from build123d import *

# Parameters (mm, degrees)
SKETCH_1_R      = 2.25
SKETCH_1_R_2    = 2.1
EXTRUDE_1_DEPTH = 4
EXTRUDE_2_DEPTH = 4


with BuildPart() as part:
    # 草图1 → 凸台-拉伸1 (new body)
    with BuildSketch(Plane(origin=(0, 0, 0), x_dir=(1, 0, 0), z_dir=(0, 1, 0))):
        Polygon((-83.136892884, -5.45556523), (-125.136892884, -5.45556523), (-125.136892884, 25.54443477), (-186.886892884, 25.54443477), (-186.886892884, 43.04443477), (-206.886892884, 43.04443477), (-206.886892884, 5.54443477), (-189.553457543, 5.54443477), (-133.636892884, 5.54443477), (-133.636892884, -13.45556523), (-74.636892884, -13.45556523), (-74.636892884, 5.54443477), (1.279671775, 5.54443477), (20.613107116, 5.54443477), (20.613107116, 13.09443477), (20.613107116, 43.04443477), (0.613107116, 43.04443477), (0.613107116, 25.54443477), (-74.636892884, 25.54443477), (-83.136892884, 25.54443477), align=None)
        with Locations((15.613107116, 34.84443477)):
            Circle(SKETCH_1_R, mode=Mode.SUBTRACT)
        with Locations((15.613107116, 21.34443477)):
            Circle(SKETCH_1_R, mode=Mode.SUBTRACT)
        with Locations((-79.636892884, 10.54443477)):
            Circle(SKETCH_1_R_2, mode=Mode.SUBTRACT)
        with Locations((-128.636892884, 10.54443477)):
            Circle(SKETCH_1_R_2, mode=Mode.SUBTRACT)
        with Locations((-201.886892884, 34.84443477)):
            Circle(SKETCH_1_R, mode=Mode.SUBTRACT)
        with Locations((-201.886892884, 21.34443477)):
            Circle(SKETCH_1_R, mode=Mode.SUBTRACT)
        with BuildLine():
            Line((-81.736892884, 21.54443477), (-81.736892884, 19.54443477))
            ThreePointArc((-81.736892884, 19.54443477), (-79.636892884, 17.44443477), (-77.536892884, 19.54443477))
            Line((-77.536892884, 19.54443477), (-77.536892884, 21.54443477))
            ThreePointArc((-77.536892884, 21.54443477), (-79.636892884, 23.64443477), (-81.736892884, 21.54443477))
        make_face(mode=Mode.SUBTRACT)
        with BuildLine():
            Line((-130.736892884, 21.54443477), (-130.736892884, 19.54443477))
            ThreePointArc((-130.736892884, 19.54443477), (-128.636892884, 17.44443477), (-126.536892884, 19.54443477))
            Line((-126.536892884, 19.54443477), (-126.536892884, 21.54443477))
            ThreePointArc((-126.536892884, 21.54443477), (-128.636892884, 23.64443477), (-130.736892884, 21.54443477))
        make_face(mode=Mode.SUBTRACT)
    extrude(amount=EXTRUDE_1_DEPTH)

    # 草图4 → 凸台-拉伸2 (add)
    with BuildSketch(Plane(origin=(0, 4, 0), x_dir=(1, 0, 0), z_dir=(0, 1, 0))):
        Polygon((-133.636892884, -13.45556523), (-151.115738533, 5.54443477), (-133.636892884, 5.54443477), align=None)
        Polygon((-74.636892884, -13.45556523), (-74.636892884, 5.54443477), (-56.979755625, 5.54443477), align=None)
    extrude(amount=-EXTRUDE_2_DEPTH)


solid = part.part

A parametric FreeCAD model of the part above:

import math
import FreeCAD as App
import Part
import Sketcher

V = App.Vector
Q = App.Units.Quantity


def add_polygon(sketch, points):
    """Adds a closed chain of lines whose ends are joined by coincident constraints."""
    first, n = sketch.GeometryCount, len(points)
    for a, b in zip(points, points[1:] + points[:1]):
        sketch.addGeometry(Part.LineSegment(App.Vector(*a, 0), App.Vector(*b, 0)), False)
    for i in range(n):
        sketch.addConstraint(Sketcher.Constraint("Coincident", first + i, 2, first + (i + 1) % n, 1))

doc = App.newDocument("Part")
body = doc.addObject("PartDesign::Body", "Body")

sketch1 = body.newObject("Sketcher::SketchObject", "Sketch")
sketch1.AttachmentSupport = (doc.getObject("XZ_Plane"), [""])
sketch1.MapMode = "FlatFace"
add_polygon(sketch1, [(-83.136893, 5.455565), (-125.136893, 5.455565), (-125.136893, -25.544435), (-186.886893, -25.544435), (-186.886893, -43.044435), (-206.886893, -43.044435), (-206.886893, -5.544435), (-133.636893, -5.544435), (-133.636893, 13.455565), (-74.636893, 13.455565), (-74.636893, -5.544435), (20.613107, -5.544435), (20.613107, -43.044435), (0.613107, -43.044435), (0.613107, -25.544435), (-83.136893, -25.544435)])
sketch1.addGeometry(Part.Circle(V(-128.636893, -10.544435, 0), V(0, 0, 1), 2.1), False)
sketch1.addGeometry(Part.Circle(V(-201.886893, -21.344435, 0), V(0, 0, 1), 2.25), False)
sketch1.addGeometry(Part.LineSegment(V(-130.736893, -19.544435, 0), V(-130.736893, -21.544435, 0)), False)
sketch1.addGeometry(Part.ArcOfCircle(Part.Circle(V(-128.636893, -21.544435, 0), V(0, 0, 1), 2.1), math.radians(180), math.radians(360)), False)
sketch1.addGeometry(Part.LineSegment(V(-126.536893, -21.544435, 0), V(-126.536893, -19.544435, 0)), False)
sketch1.addGeometry(Part.ArcOfCircle(Part.Circle(V(-128.636893, -19.544435, 0), V(0, 0, 1), 2.1), math.radians(0), math.radians(180)), False)
sketch1.addGeometry(Part.Circle(V(-79.636893, -10.544435, 0), V(0, 0, 1), 2.1), False)
sketch1.addGeometry(Part.LineSegment(V(-81.736893, -19.544435, 0), V(-81.736893, -21.544435, 0)), False)
sketch1.addGeometry(Part.ArcOfCircle(Part.Circle(V(-79.636893, -21.544435, 0), V(0, 0, 1), 2.1), math.radians(180), math.radians(360)), False)
sketch1.addGeometry(Part.LineSegment(V(-77.536893, -21.544435, 0), V(-77.536893, -19.544435, 0)), False)
sketch1.addGeometry(Part.ArcOfCircle(Part.Circle(V(-79.636893, -19.544435, 0), V(0, 0, 1), 2.1), math.radians(0), math.radians(180)), False)
sketch1.addGeometry(Part.Circle(V(15.613107, -21.344435, 0), V(0, 0, 1), 2.25), False)
sketch1.addGeometry(Part.Circle(V(-201.886893, -34.844435, 0), V(0, 0, 1), 2.25), False)
sketch1.addGeometry(Part.Circle(V(15.613107, -34.844435, 0), V(0, 0, 1), 2.25), False)
sketch1.addConstraint(Sketcher.Constraint("Tangent", 18, 2, 19, 1))
sketch1.addConstraint(Sketcher.Constraint("Tangent", 19, 2, 20, 1))
sketch1.addConstraint(Sketcher.Constraint("Tangent", 20, 2, 21, 1))
sketch1.addConstraint(Sketcher.Constraint("Tangent", 21, 2, 18, 1))
sketch1.addConstraint(Sketcher.Constraint("Tangent", 23, 2, 24, 1))
sketch1.addConstraint(Sketcher.Constraint("Tangent", 24, 2, 25, 1))
sketch1.addConstraint(Sketcher.Constraint("Tangent", 25, 2, 26, 1))
sketch1.addConstraint(Sketcher.Constraint("Tangent", 26, 2, 23, 1))
sketch1.addConstraint(Sketcher.Constraint("Horizontal", 0))
sketch1.addConstraint(Sketcher.Constraint("Vertical", 1))
sketch1.addConstraint(Sketcher.Constraint("Horizontal", 2))
sketch1.addConstraint(Sketcher.Constraint("Vertical", 3))
sketch1.addConstraint(Sketcher.Constraint("Horizontal", 4))
sketch1.addConstraint(Sketcher.Constraint("Vertical", 5))
sketch1.addConstraint(Sketcher.Constraint("Horizontal", 6))
sketch1.addConstraint(Sketcher.Constraint("Vertical", 7))
sketch1.addConstraint(Sketcher.Constraint("Horizontal", 8))
sketch1.addConstraint(Sketcher.Constraint("Vertical", 9))
sketch1.addConstraint(Sketcher.Constraint("Horizontal", 10))
sketch1.addConstraint(Sketcher.Constraint("Vertical", 11))
sketch1.addConstraint(Sketcher.Constraint("Horizontal", 12))
sketch1.addConstraint(Sketcher.Constraint("Vertical", 13))
sketch1.addConstraint(Sketcher.Constraint("Horizontal", 14))
sketch1.addConstraint(Sketcher.Constraint("Vertical", 15))
sketch1.addConstraint(Sketcher.Constraint("Vertical", 18))
sketch1.addConstraint(Sketcher.Constraint("Vertical", 20))
sketch1.addConstraint(Sketcher.Constraint("Vertical", 23))
sketch1.addConstraint(Sketcher.Constraint("Vertical", 25))
sketch1.addConstraint(Sketcher.Constraint("Equal", 16, 19))
sketch1.addConstraint(Sketcher.Constraint("Equal", 21, 22))
sketch1.addConstraint(Sketcher.Constraint("Equal", 22, 24))
sketch1.addConstraint(Sketcher.Constraint("Equal", 17, 27))
sketch1.addConstraint(Sketcher.Constraint("Equal", 27, 28))
sketch1.addConstraint(Sketcher.Constraint("Equal", 28, 29))
sketch1.addConstraint(Sketcher.Constraint("Horizontal", 16, 3, 22, 3))
sketch1.addConstraint(Sketcher.Constraint("Horizontal", 19, 3, 24, 3))
sketch1.addConstraint(Sketcher.Constraint("Horizontal", 21, 3, 26, 3))
sketch1.addConstraint(Sketcher.Constraint("Horizontal", 17, 3, 27, 3))
sketch1.addConstraint(Sketcher.Constraint("Horizontal", 28, 3, 29, 3))
sketch1.addConstraint(Sketcher.Constraint("Horizontal", 6, 2, 9, 2))
sketch1.addConstraint(Sketcher.Constraint("Horizontal", 4, 2, 11, 2))
sketch1.addConstraint(Sketcher.Constraint("Horizontal", 2, 2, 13, 2))
sketch1.addConstraint(Sketcher.Constraint("Vertical", 16, 3, 19, 3))
sketch1.addConstraint(Sketcher.Constraint("Vertical", 22, 3, 24, 3))
sketch1.addConstraint(Sketcher.Constraint("Vertical", 17, 3, 28, 3))
sketch1.addConstraint(Sketcher.Constraint("Vertical", 27, 3, 29, 3))
sketch1.addConstraint(Sketcher.Constraint("Equal", 4, 12))
sketch1.addConstraint(Sketcher.Constraint("Diameter", 16, Q("4.2 mm")))
sketch1.addConstraint(Sketcher.Constraint("Diameter", 17, Q("4.5 mm")))
sketch1.addConstraint(Sketcher.Constraint("DistanceX", 0, 2, 0, 1, Q("42 mm")))
sketch1.addConstraint(Sketcher.Constraint("DistanceX", 4, 2, 4, 1, Q("20 mm")))
sketch1.addConstraint(Sketcher.Constraint("DistanceX", 8, 1, 8, 2, Q("59 mm")))
sketch1.addConstraint(Sketcher.Constraint("DistanceY", 1, 2, 1, 1, Q("31 mm")))
sketch1.addConstraint(Sketcher.Constraint("DistanceY", 7, 1, 7, 2, Q("19 mm")))
sketch1.addConstraint(Sketcher.Constraint("DistanceY", 18, 2, 18, 1, Q("2 mm")))
sketch1.addConstraint(Sketcher.Constraint("DistanceY", 3, 2, 3, 1, Q("17.5 mm")))
sketch1.addConstraint(Sketcher.Constraint("DistanceY", 5, 1, 5, 2, Q("37.5 mm")))
sketch1.addConstraint(Sketcher.Constraint("DistanceY", 19, 3, 16, 3, Q("11 mm")))
sketch1.addConstraint(Sketcher.Constraint("DistanceX", 16, 3, 22, 3, Q("49 mm")))
sketch1.addConstraint(Sketcher.Constraint("DistanceY", 16, 3, 0, 2, Q("16 mm")))
sketch1.addConstraint(Sketcher.Constraint("DistanceX", 17, 3, 2, 2, Q("15 mm")))
sketch1.addConstraint(Sketcher.Constraint("DistanceX", 6, 2, 16, 3, Q("5 mm")))
sketch1.addConstraint(Sketcher.Constraint("DistanceX", 27, 3, 10, 2, Q("5 mm")))
sketch1.addConstraint(Sketcher.Constraint("DistanceX", 2, 2, 2, 1, Q("61.75 mm")))
sketch1.addConstraint(Sketcher.Constraint("DistanceX", 6, 1, 6, 2, Q("73.25 mm")))
sketch1.addConstraint(Sketcher.Constraint("DistanceX", 10, 1, 10, 2, Q("95.25 mm")))
sketch1.addConstraint(Sketcher.Constraint("DistanceY", 17, 3, 16, 3, Q("10.8 mm")))
sketch1.addConstraint(Sketcher.Constraint("DistanceY", 28, 3, 17, 3, Q("13.5 mm")))
sketch1.addConstraint(Sketcher.Constraint("DistanceX", 16, 3, -1, 1, Q("128.636893 mm")))
sketch1.addConstraint(Sketcher.Constraint("DistanceY", 16, 3, -1, 1, Q("10.544435 mm")))
pad1 = body.newObject("PartDesign::Pad", "Pad")
pad1.Profile = sketch1
pad1.Length = 4
pad1.Reversed = True

sketch2 = body.newObject("Sketcher::SketchObject", "Sketch001")
sketch2.AttachmentSupport = (doc.getObject("XZ_Plane"), [""])
sketch2.MapMode = "FlatFace"
sketch2.AttachmentOffset = App.Placement(V(0, 0, -4), App.Rotation())
add_polygon(sketch2, [(-151.115739, -5.544435), (-133.636893, 13.455565), (-133.636893, -5.544435)])
add_polygon(sketch2, [(-74.636893, -5.544435), (-74.636893, 13.455565), (-56.979756, -5.544435)])
sketch2.addConstraint(Sketcher.Constraint("Vertical", 1))
sketch2.addConstraint(Sketcher.Constraint("Horizontal", 2))
sketch2.addConstraint(Sketcher.Constraint("Vertical", 3))
sketch2.addConstraint(Sketcher.Constraint("Horizontal", 5))
sketch2.addConstraint(Sketcher.Constraint("Horizontal", 0, 2, 3, 2))
sketch2.addConstraint(Sketcher.Constraint("Horizontal", 2, 2, 4, 2))
sketch2.addConstraint(Sketcher.Constraint("DistanceY", 1, 2, 1, 1, Q("19 mm")))
sketch2.addConstraint(Sketcher.Constraint("DistanceX", 0, 2, 3, 2, Q("59 mm")))
sketch2.addConstraint(Sketcher.Constraint("DistanceX", 2, 2, 2, 1, Q("17.478846 mm")))
sketch2.addConstraint(Sketcher.Constraint("DistanceX", 5, 2, 5, 1, Q("17.657137 mm")))
sketch2.addConstraint(Sketcher.Constraint("DistanceX", 2, 2, -1, 1, Q("151.115739 mm")))
sketch2.addConstraint(Sketcher.Constraint("DistanceY", -1, 1, 0, 2, Q("13.455565 mm")))
pad2 = body.newObject("PartDesign::Pad", "Pad001")
pad2.Profile = sketch2
pad2.Length = 4

doc.recompute()
